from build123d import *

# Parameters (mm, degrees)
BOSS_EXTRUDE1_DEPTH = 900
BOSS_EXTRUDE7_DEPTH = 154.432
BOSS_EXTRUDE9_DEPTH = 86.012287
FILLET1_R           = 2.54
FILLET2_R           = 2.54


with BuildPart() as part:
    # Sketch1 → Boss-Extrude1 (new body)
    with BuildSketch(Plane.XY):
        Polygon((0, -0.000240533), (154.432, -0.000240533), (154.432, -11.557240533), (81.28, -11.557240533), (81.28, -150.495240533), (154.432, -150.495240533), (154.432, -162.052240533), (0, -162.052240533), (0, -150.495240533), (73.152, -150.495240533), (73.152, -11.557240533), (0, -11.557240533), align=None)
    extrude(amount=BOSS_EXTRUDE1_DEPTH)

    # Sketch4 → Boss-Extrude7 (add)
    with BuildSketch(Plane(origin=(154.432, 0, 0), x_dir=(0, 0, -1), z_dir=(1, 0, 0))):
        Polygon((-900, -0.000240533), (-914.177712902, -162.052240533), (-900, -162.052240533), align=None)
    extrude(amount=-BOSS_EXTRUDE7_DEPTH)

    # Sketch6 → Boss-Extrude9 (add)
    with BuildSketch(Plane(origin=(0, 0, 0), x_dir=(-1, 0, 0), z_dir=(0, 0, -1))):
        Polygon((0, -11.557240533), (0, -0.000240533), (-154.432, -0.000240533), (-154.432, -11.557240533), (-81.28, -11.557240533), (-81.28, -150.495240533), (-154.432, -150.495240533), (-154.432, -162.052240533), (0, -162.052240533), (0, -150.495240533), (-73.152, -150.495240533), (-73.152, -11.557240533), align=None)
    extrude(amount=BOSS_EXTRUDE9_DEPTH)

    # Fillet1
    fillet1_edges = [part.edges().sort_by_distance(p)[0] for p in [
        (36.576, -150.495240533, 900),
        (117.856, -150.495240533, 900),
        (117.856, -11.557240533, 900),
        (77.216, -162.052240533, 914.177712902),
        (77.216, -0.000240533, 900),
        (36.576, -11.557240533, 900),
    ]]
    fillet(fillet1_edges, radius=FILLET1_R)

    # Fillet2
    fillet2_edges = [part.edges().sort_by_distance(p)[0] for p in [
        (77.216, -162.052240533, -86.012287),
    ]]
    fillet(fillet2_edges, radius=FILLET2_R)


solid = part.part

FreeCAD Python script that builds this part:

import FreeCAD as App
import Part
import Sketcher
from FreeCAD import Vector
Q = App.Units.Quantity


def edges_at(feature, points):
    """Names of the edges that pass closest to the given points."""
    edges = feature.Shape.Edges
    near = lambda p: min(range(len(edges)), key=lambda i: edges[i].distToShape(Part.Vertex(*p))[0])
    return sorted({f"Edge{near(p) + 1}" for p in points})


def add_polygon(sketch, points):
    """Adds a closed chain of lines whose ends are joined by coincident constraints."""
    first, n = sketch.GeometryCount, len(points)
    for a, b in zip(points, points[1:] + points[:1]):
        sketch.addGeometry(Part.LineSegment(App.Vector(*a, 0), App.Vector(*b, 0)), False)
    for i in range(n):
        sketch.addConstraint(Sketcher.Constraint("Coincident", first + i, 2, first + (i + 1) % n, 1))

doc = App.newDocument("Part")
body = doc.addObject("PartDesign::Body", "Body")

# Sketch on XY plane
sketch1 = body.newObject("Sketcher::SketchObject", "Sketch")
sketch1.AttachmentSupport = (doc.getObject("XY_Plane"), [""])
sketch1.MapMode = "FlatFace"
add_polygon(sketch1, [(154, 0), (0, 0), (0, -12), (73, -12), (73, -150), (0, -150), (0, -162), (154, -162), (154, -150), (81, -150), (81, -12), (154, -12)])  # lines 0-11
sketch1.addConstraint([
    Sketcher.Constraint("Horizontal", 0),
    Sketcher.Constraint("Vertical", 1),
    Sketcher.Constraint("Horizontal", 2),
    Sketcher.Constraint("Vertical", 3),
    Sketcher.Constraint("Horizontal", 4),
    Sketcher.Constraint("Vertical", 5),
    Sketcher.Constraint("Horizontal", 6),
    Sketcher.Constraint("Vertical", 7),
    Sketcher.Constraint("Horizontal", 8),
    Sketcher.Constraint("Vertical", 9),
    Sketcher.Constraint("Horizontal", 10),
    Sketcher.Constraint("Vertical", 11),
    Sketcher.Constraint("PointOnObject", 0, 2, -2),
    Sketcher.Constraint("PointOnObject", 4, 2, -2),
    Sketcher.Constraint("Horizontal", 4, 2, 7, 2),
    Sketcher.Constraint("Horizontal", 2, 2, 9, 2),
    Sketcher.Constraint("Vertical", 7, 2, 10, 2),
    Sketcher.Constraint("Equal", 4, 8),
    Sketcher.Constraint("Equal", 1, 5),
    Sketcher.Constraint("DistanceX", 0, 2, 0, 1, Q("6.08 in")),
    Sketcher.Constraint("DistanceX", 2, 1, 2, 2, Q("2.88 in")),
    Sketcher.Constraint("DistanceY", 3, 2, 3, 1, Q("5.47 in")),
    Sketcher.Constraint("DistanceY", 1, 2, 1, 1, Q("0.455 in")),
    Sketcher.Constraint("DistanceY", 0, 2, -1, 1, Q("0.000241 mm")),
])
pad1 = body.newObject("PartDesign::Pad", "Pad")
pad1.Profile = sketch1
pad1.Length = 900

# Sketch on YZ plane
sketch2 = body.newObject("Sketcher::SketchObject", "Sketch001")
sketch2.AttachmentSupport = (doc.getObject("YZ_Plane"), [""])
sketch2.MapMode = "FlatFace"
sketch2.AttachmentOffset = App.Placement(Vector(0, 0, 6.08 * 25.4), App.Rotation())
add_polygon(sketch2, [(0, 900), (-162, 914), (-162, 900)])  # lines 0-2
sketch2.addConstraint([
    Sketcher.Constraint("Vertical", 1),
    Sketcher.Constraint("Horizontal", 2),
    Sketcher.Constraint("Angle", 0, Q("175 deg")),
    Sketcher.Constraint("DistanceX", 2, 1, 2, 2, Q("6.38 in")),
    Sketcher.Constraint("DistanceY", -1, 1, 1, 2, Q("900 mm")),
    Sketcher.Constraint("DistanceX", 0, 2, -1, 1, Q("162.052241 mm")),
])
pad2 = body.newObject("PartDesign::Pad", "Pad001")
pad2.Profile = sketch2
pad2.Length = Q("6.08 in")
pad2.Reversed = True

# Sketch on XY plane
sketch3 = body.newObject("Sketcher::SketchObject", "Sketch002")
sketch3.AttachmentSupport = (doc.getObject("XY_Plane"), [""])
sketch3.MapMode = "FlatFace"
add_polygon(sketch3, [(0, -12), (0, 0), (154, 0), (154, -12), (81, -12), (81, -150), (154, -150), (154, -162), (0, -162), (0, -150), (73, -150), (73, -12)])  # lines 0-11
sketch3.addConstraint([
    Sketcher.Constraint("Vertical", 0),
    Sketcher.Constraint("Horizontal", 1),
    Sketcher.Constraint("Vertical", 2),
    Sketcher.Constraint("Horizontal", 3),
    Sketcher.Constraint("Vertical", 4),
    Sketcher.Constraint("Horizontal", 5),
    Sketcher.Constraint("Vertical", 6),
    Sketcher.Constraint("Horizontal", 7),
    Sketcher.Constraint("Vertical", 8),
    Sketcher.Constraint("Horizontal", 9),
    Sketcher.Constraint("Vertical", 10),
    Sketcher.Constraint("Horizontal", 11),
    Sketcher.Constraint("PointOnObject", 0, 2, -2),
    Sketcher.Constraint("PointOnObject", 7, 2, -2),
    Sketcher.Constraint("Horizontal", 5, 2, 8, 2),
    Sketcher.Constraint("Horizontal", 3, 2, 10, 2),
    Sketcher.Constraint("Vertical", 2, 2, 5, 2),
    Sketcher.Constraint("Equal", 5, 9),
    Sketcher.Constraint("Equal", 2, 6),
    Sketcher.Constraint("DistanceX", 1, 1, 1, 2, Q("6.08 in")),
    Sketcher.Constraint("DistanceX", 3, 2, 3, 1, Q("2.88 in")),
    Sketcher.Constraint("DistanceY", 4, 2, 4, 1, Q("5.47 in")),
    Sketcher.Constraint("DistanceY", 0, 1, 0, 2, Q("0.455 in")),
    Sketcher.Constraint("DistanceY", 0, 2, -1, 1, Q("0.000241 mm")),
])
pad3 = body.newObject("PartDesign::Pad", "Pad002")
pad3.Profile = sketch3
pad3.Length = 86.012287
pad3.Reversed = True
doc.recompute()

fillet = body.newObject("PartDesign::Fillet", "Fillet")
fillet.Base = (pad3, edges_at(pad3, [
    (36.576, -150.495, 900),
    (117.856, -150.495, 900),
    (117.856, -11.557, 900),
    (77.216, -162.052, 914.178),
    (77.216, 0, 900),
    (36.576, -11.557, 900),
]))
fillet.Radius = Q("0.1 in")
doc.recompute()

fillet2 = body.newObject("PartDesign::Fillet", "Fillet001")
fillet2.Base = (fillet, edges_at(fillet, [(77.216, -162.052, -86.012)]))
fillet2.Radius = Q("0.1 in")

doc.recompute()
